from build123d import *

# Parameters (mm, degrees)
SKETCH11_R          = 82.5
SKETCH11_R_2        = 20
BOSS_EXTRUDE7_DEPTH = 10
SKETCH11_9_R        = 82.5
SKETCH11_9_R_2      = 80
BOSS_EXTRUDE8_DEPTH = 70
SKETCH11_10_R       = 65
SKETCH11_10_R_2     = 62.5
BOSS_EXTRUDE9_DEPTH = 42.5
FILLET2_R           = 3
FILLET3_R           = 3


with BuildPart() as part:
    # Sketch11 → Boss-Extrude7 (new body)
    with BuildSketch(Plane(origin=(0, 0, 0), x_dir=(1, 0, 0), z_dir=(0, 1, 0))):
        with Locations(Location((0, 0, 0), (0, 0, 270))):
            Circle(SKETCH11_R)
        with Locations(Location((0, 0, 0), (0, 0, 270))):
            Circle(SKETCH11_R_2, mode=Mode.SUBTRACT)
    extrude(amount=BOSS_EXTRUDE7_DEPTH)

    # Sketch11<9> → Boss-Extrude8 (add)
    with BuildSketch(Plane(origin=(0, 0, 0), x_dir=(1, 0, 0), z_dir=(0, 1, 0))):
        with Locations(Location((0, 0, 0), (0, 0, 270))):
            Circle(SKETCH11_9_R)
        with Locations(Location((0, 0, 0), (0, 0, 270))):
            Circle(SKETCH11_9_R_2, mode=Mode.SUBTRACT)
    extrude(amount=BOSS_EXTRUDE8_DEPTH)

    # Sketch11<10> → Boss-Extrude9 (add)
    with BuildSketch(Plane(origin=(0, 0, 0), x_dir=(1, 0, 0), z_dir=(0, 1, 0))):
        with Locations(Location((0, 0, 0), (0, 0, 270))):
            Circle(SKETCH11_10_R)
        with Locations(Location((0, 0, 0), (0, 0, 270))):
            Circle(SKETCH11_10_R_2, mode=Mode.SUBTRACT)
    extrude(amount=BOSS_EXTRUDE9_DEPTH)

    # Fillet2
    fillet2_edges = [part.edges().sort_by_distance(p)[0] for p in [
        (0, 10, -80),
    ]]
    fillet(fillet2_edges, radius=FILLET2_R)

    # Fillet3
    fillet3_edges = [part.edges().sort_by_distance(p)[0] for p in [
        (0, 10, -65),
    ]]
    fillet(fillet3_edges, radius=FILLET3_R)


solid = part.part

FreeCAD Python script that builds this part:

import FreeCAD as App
import Part
import Sketcher
from FreeCAD import Vector


def edges_at(feature, points):
    """Names of the edges that pass closest to the given points."""
    edges = feature.Shape.Edges
    near = lambda p: min(range(len(edges)), key=lambda i: edges[i].distToShape(Part.Vertex(*p))[0])
    return sorted({f"Edge{near(p) + 1}" for p in points})

doc = App.newDocument("Part")
body = doc.addObject("PartDesign::Body", "Body")

# Sketch on XZ plane
sketch1 = body.newObject("Sketcher::SketchObject", "Sketch")
sketch1.AttachmentSupport = (doc.getObject("XZ_Plane"), [""])
sketch1.MapMode = "FlatFace"
sketch1.addGeometry(Part.Circle(Vector(0, 0, 0), Vector(0, 0, 1), 82.5), False)
sketch1.addGeometry(Part.Circle(Vector(0, 0, 0), Vector(0, 0, 1), 20), False)
sketch1.addConstraint(Sketcher.Constraint("Coincident", 0, 3, -1, 1))
sketch1.addConstraint(Sketcher.Constraint("Coincident", 1, 3, -1, 1))
sketch1.addConstraint(Sketcher.Constraint("Diameter", 0, 165.0))
sketch1.addConstraint(Sketcher.Constraint("Diameter", 1, 40.0))
pad1 = body.newObject("PartDesign::Pad", "Pad")
pad1.Profile = sketch1
pad1.Length = 10
pad1.Reversed = True

# Sketch on XZ plane
sketch2 = body.newObject("Sketcher::SketchObject", "Sketch001")
sketch2.AttachmentSupport = (doc.getObject("XZ_Plane"), [""])
sketch2.MapMode = "FlatFace"
sketch2.addGeometry(Part.Circle(Vector(0, 0, 0), Vector(0, 0, 1), 82.5), False)
sketch2.addGeometry(Part.Circle(Vector(0, 0, 0), Vector(0, 0, 1), 80), False)
sketch2.addConstraint(Sketcher.Constraint("Coincident", 0, 3, -1, 1))
sketch2.addConstraint(Sketcher.Constraint("Coincident", 1, 3, -1, 1))
sketch2.addConstraint(Sketcher.Constraint("Diameter", 0, 165.0))
sketch2.addConstraint(Sketcher.Constraint("Diameter", 1, 160.0))
pad2 = body.newObject("PartDesign::Pad", "Pad001")
pad2.Profile = sketch2
pad2.Length = 70
pad2.Reversed = True

# Sketch on XZ plane
sketch3 = body.newObject("Sketcher::SketchObject", "Sketch002")
sketch3.AttachmentSupport = (doc.getObject("XZ_Plane"), [""])
sketch3.MapMode = "FlatFace"
sketch3.addGeometry(Part.Circle(Vector(0, 0, 0), Vector(0, 0, 1), 65), False)
sketch3.addGeometry(Part.Circle(Vector(0, 0, 0), Vector(0, 0, 1), 62.5), False)
sketch3.addConstraint(Sketcher.Constraint("Coincident", 0, 3, -1, 1))
sketch3.addConstraint(Sketcher.Constraint("Coincident", 1, 3, -1, 1))
sketch3.addConstraint(Sketcher.Constraint("Diameter", 0, 130.0))
sketch3.addConstraint(Sketcher.Constraint("Diameter", 1, 125.0))
pad3 = body.newObject("PartDesign::Pad", "Pad002")
pad3.Profile = sketch3
pad3.Length = 42.5
pad3.Reversed = True
doc.recompute()

fillet = body.newObject("PartDesign::Fillet", "Fillet")
fillet.Base = (pad3, edges_at(pad3, [(0, 10, -80)]))
fillet.Radius = 3
doc.recompute()

fillet2 = body.newObject("PartDesign::Fillet", "Fillet001")
fillet2.Base = (fillet, edges_at(fillet, [(0, 10, -65)]))
fillet2.Radius = 3

doc.recompute()
